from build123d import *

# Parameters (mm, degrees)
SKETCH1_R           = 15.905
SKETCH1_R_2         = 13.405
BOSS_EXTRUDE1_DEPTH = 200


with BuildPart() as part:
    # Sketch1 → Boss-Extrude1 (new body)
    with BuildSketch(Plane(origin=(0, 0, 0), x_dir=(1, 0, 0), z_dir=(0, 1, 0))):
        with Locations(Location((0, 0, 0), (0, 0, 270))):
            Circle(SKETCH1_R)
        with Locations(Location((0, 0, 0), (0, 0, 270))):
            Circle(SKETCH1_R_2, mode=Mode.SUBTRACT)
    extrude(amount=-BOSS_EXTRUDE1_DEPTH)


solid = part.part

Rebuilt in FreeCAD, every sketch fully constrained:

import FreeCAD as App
import Part
import Sketcher

V = App.Vector

doc = App.newDocument("Part")
body = doc.addObject("PartDesign::Body", "Body")

# Sketch on XZ plane
sketch1 = doc.addObject("Sketcher::SketchObject", "Sketch")
body.addObject(sketch1)
sketch1.AttachmentSupport = (doc.XZ_Plane, [""])
sketch1.MapMode = "FlatFace"
sketch1.addGeometry([
    Part.Circle(V(0, 0, 0), V(0, 0, 1), 16),
    Part.Circle(V(0, 0, 0), V(0, 0, 1), 13),
], False)
sketch1.addConstraint([
    Sketcher.Constraint("Coincident", 0, 3, -1, 1),
    Sketcher.Constraint("Coincident", 1, 3, -1, 1),
    Sketcher.Constraint("Diameter", 0, 31.81),
    Sketcher.Constraint("Diameter", 1, 26.81),
])
pad1 = doc.addObject("PartDesign::Pad", "Pad")
body.addObject(pad1)
pad1.Profile = sketch1
pad1.Length = 200

doc.recompute()
